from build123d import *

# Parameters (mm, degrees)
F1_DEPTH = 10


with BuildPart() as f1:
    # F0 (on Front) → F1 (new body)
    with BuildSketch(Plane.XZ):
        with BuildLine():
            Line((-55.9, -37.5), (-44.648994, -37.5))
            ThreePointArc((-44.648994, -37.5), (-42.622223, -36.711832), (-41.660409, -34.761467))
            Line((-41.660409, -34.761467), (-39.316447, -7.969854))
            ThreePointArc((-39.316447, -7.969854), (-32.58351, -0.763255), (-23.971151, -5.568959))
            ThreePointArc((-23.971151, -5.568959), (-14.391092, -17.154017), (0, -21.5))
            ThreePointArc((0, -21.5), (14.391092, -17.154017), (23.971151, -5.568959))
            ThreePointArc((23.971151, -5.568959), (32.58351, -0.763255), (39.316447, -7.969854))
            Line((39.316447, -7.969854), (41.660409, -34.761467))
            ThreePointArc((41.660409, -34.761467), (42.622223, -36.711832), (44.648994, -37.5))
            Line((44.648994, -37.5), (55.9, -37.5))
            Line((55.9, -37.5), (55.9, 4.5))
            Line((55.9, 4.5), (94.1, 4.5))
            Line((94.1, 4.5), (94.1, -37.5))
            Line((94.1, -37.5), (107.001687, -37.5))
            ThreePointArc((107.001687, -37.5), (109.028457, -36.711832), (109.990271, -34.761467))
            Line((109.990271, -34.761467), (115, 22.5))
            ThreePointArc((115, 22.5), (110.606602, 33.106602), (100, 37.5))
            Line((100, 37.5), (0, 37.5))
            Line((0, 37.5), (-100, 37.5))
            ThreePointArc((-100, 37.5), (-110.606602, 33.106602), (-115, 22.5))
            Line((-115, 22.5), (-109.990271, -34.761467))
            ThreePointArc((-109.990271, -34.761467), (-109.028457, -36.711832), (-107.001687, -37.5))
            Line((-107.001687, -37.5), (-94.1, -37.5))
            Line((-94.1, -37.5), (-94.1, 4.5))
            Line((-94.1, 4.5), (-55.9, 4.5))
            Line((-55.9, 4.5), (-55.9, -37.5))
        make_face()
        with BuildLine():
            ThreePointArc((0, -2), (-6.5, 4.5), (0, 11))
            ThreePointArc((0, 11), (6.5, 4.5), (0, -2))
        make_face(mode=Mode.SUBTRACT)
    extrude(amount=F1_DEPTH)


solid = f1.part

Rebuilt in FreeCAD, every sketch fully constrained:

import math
import FreeCAD as App
import Part
import Sketcher
Q = App.Units.Quantity

doc = App.newDocument("Part")
body = doc.addObject("PartDesign::Body", "Body")

sketch1 = doc.addObject("Sketcher::SketchObject", "Sketch")
body.addObject(sketch1)
sketch1.AttachmentSupport = (doc.XZ_Plane, [""])
sketch1.MapMode = "FlatFace"
sketch1.addGeometry([
    Part.LineSegment(App.Vector(-55.9, -37.5, 0), App.Vector(-44.6, -37.5, 0)),
    Part.ArcOfCircle(Part.Circle(App.Vector(-44.6, -34.5, 0), App.Vector(0, 0, 1), 3), math.radians(-90), math.radians(-5)),
    Part.LineSegment(App.Vector(-41.7, -34.8, 0), App.Vector(-39.3, -8, 0)),
    Part.ArcOfCircle(Part.Circle(App.Vector(-31.3, -8.7, 0), App.Vector(0, 0, 1), 8), math.radians(23), math.radians(175)),
    Part.ArcOfCircle(Part.Circle(App.Vector(0, 4.5, 0), App.Vector(0, 0, 1), 26), math.radians(-157), math.radians(-90)),
    Part.ArcOfCircle(Part.Circle(App.Vector(0, 4.5, 0), App.Vector(0, 0, 1), 26), math.radians(-90), math.radians(-23)),
    Part.ArcOfCircle(Part.Circle(App.Vector(31.3, -8.7, 0), App.Vector(0, 0, 1), 8), math.radians(5), math.radians(157)),
    Part.LineSegment(App.Vector(39.3, -8, 0), App.Vector(41.7, -34.8, 0)),
    Part.ArcOfCircle(Part.Circle(App.Vector(44.6, -34.5, 0), App.Vector(0, 0, 1), 3), math.radians(-175), math.radians(-90)),
    Part.LineSegment(App.Vector(44.6, -37.5, 0), App.Vector(55.9, -37.5, 0)),
    Part.LineSegment(App.Vector(55.9, -37.5, 0), App.Vector(55.9, 4.5, 0)),
    Part.LineSegment(App.Vector(55.9, 4.5, 0), App.Vector(94.1, 4.5, 0)),
    Part.LineSegment(App.Vector(94.1, 4.5, 0), App.Vector(94.1, -37.5, 0)),
    Part.LineSegment(App.Vector(94.1, -37.5, 0), App.Vector(107, -37.5, 0)),
    Part.ArcOfCircle(Part.Circle(App.Vector(107, -34.5, 0), App.Vector(0, 0, 1), 3), math.radians(-90), math.radians(-5)),
    Part.LineSegment(App.Vector(110, -34.8, 0), App.Vector(115, 22.5, 0)),
    Part.ArcOfCircle(Part.Circle(App.Vector(100, 22.5, 0), App.Vector(0, 0, 1), 15), math.radians(0), math.radians(90)),
    Part.LineSegment(App.Vector(100, 37.5, 0), App.Vector(-100, 37.5, 0)),
    Part.ArcOfCircle(Part.Circle(App.Vector(-100, 22.5, 0), App.Vector(0, 0, 1), 15), math.radians(90), math.radians(180)),
    Part.LineSegment(App.Vector(-115, 22.5, 0), App.Vector(-110, -34.8, 0)),
    Part.ArcOfCircle(Part.Circle(App.Vector(-107, -34.5, 0), App.Vector(0, 0, 1), 3), math.radians(-175), math.radians(-90)),
    Part.LineSegment(App.Vector(-107, -37.5, 0), App.Vector(-94.1, -37.5, 0)),
    Part.LineSegment(App.Vector(-94.1, -37.5, 0), App.Vector(-94.1, 4.5, 0)),
    Part.LineSegment(App.Vector(-94.1, 4.5, 0), App.Vector(-55.9, 4.5, 0)),
    Part.LineSegment(App.Vector(-55.9, 4.5, 0), App.Vector(-55.9, -37.5, 0)),
    Part.Circle(App.Vector(0, 4.5, 0), App.Vector(0, 0, 1), 6.5),
], False)
sketch1.addConstraint([
    Sketcher.Constraint("Tangent", 0, 2, 1, 1),
    Sketcher.Constraint("Tangent", 1, 2, 2, 1),
    Sketcher.Constraint("Tangent", 2, 2, 3, 2),
    Sketcher.Constraint("Tangent", 3, 1, 4, 1),
    Sketcher.Constraint("Tangent", 4, 2, 5, 1),
    Sketcher.Constraint("Tangent", 5, 2, 6, 2),
    Sketcher.Constraint("Tangent", 6, 1, 7, 1),
    Sketcher.Constraint("Tangent", 7, 2, 8, 1),
    Sketcher.Constraint("Tangent", 8, 2, 9, 1),
    Sketcher.Constraint("Coincident", 9, 2, 10, 1),
    Sketcher.Constraint("Coincident", 10, 2, 11, 1),
    Sketcher.Constraint("Coincident", 11, 2, 12, 1),
    Sketcher.Constraint("Coincident", 12, 2, 13, 1),
    Sketcher.Constraint("Tangent", 13, 2, 14, 1),
    Sketcher.Constraint("Tangent", 14, 2, 15, 1),
    Sketcher.Constraint("Coincident", 15, 2, 16, 1),
    Sketcher.Constraint("Tangent", 16, 2, 17, 1),
    Sketcher.Constraint("Tangent", 17, 2, 18, 1),
    Sketcher.Constraint("Coincident", 18, 2, 19, 1),
    Sketcher.Constraint("Tangent", 19, 2, 20, 1),
    Sketcher.Constraint("Tangent", 20, 2, 21, 1),
    Sketcher.Constraint("Coincident", 21, 2, 22, 1),
    Sketcher.Constraint("Coincident", 22, 2, 23, 1),
    Sketcher.Constraint("Coincident", 23, 2, 24, 1),
    Sketcher.Constraint("Coincident", 24, 2, 0, 1),
    Sketcher.Constraint("Horizontal", 0),
    Sketcher.Constraint("Horizontal", 9),
    Sketcher.Constraint("Vertical", 10),
    Sketcher.Constraint("Horizontal", 11),
    Sketcher.Constraint("Vertical", 12),
    Sketcher.Constraint("Horizontal", 13),
    Sketcher.Constraint("Horizontal", 17),
    Sketcher.Constraint("Horizontal", 21),
    Sketcher.Constraint("Vertical", 22),
    Sketcher.Constraint("Horizontal", 23),
    Sketcher.Constraint("Vertical", 24),
    Sketcher.Constraint("Coincident", 25, 3, 4, 3),
    Sketcher.Constraint("Equal", 4, 5),
    Sketcher.Constraint("Equal", 3, 6),
    Sketcher.Constraint("Equal", 1, 8),
    Sketcher.Constraint("Equal", 8, 14),
    Sketcher.Constraint("Equal", 16, 18),
    Sketcher.Constraint("Equal", 14, 20),
    Sketcher.Constraint("Symmetric", 3, 3, 6, 3, -2),
    Sketcher.Constraint("Symmetric", 1, 3, 8, 3, -2),
    Sketcher.Constraint("Symmetric", 14, 3, 20, 3, -2),
    Sketcher.Constraint("Symmetric", 15, 2, 18, 2, -2),
    Sketcher.Constraint("Symmetric", 11, 2, 22, 2, -2),
    Sketcher.Constraint("PointOnObject", 4, 2, -2),
    Sketcher.Constraint("Parallel", 2, 15),
    Sketcher.Constraint("Horizontal", 8, 3, 14, 3),
    Sketcher.Constraint("Horizontal", 25, 3, 10, 2),
    Sketcher.Constraint("Horizontal", 18, 3, 15, 2),
    Sketcher.Constraint("Equal", 0, 9),
    Sketcher.Constraint("Diameter", 25, 13.0),
    Sketcher.Constraint("Radius", 1, 3.000001),
    Sketcher.Constraint("Radius", 3, 8.0),
    Sketcher.Constraint("Radius", 16, 14.999999),
    Sketcher.Constraint("DistanceX", 17, 2, 17, 1, 200.0),
    Sketcher.Constraint("DistanceY", 10, 1, 10, 2, 42.0),
    Sketcher.Constraint("Angle", 2, Q("85.000001 deg")),
    Sketcher.Constraint("DistanceX", 11, 1, 11, 2, 38.2),
    Sketcher.Constraint("DistanceY", 14, 3, 16, 3, 57.0),
    Sketcher.Constraint("DistanceY", 4, 2, 25, 3, 26.0),
    Sketcher.Constraint("DistanceY", 1, 3, -1, 1, 34.499999),
    Sketcher.Constraint("DistanceX", -1, 1, 9, 2, 55.9),
    Sketcher.Constraint("DistanceY", 3, 3, -1, 1, 8.6671),
])
pad1 = doc.addObject("PartDesign::Pad", "Pad")
body.addObject(pad1)
pad1.Profile = sketch1
pad1.Length = 10

doc.recompute()
